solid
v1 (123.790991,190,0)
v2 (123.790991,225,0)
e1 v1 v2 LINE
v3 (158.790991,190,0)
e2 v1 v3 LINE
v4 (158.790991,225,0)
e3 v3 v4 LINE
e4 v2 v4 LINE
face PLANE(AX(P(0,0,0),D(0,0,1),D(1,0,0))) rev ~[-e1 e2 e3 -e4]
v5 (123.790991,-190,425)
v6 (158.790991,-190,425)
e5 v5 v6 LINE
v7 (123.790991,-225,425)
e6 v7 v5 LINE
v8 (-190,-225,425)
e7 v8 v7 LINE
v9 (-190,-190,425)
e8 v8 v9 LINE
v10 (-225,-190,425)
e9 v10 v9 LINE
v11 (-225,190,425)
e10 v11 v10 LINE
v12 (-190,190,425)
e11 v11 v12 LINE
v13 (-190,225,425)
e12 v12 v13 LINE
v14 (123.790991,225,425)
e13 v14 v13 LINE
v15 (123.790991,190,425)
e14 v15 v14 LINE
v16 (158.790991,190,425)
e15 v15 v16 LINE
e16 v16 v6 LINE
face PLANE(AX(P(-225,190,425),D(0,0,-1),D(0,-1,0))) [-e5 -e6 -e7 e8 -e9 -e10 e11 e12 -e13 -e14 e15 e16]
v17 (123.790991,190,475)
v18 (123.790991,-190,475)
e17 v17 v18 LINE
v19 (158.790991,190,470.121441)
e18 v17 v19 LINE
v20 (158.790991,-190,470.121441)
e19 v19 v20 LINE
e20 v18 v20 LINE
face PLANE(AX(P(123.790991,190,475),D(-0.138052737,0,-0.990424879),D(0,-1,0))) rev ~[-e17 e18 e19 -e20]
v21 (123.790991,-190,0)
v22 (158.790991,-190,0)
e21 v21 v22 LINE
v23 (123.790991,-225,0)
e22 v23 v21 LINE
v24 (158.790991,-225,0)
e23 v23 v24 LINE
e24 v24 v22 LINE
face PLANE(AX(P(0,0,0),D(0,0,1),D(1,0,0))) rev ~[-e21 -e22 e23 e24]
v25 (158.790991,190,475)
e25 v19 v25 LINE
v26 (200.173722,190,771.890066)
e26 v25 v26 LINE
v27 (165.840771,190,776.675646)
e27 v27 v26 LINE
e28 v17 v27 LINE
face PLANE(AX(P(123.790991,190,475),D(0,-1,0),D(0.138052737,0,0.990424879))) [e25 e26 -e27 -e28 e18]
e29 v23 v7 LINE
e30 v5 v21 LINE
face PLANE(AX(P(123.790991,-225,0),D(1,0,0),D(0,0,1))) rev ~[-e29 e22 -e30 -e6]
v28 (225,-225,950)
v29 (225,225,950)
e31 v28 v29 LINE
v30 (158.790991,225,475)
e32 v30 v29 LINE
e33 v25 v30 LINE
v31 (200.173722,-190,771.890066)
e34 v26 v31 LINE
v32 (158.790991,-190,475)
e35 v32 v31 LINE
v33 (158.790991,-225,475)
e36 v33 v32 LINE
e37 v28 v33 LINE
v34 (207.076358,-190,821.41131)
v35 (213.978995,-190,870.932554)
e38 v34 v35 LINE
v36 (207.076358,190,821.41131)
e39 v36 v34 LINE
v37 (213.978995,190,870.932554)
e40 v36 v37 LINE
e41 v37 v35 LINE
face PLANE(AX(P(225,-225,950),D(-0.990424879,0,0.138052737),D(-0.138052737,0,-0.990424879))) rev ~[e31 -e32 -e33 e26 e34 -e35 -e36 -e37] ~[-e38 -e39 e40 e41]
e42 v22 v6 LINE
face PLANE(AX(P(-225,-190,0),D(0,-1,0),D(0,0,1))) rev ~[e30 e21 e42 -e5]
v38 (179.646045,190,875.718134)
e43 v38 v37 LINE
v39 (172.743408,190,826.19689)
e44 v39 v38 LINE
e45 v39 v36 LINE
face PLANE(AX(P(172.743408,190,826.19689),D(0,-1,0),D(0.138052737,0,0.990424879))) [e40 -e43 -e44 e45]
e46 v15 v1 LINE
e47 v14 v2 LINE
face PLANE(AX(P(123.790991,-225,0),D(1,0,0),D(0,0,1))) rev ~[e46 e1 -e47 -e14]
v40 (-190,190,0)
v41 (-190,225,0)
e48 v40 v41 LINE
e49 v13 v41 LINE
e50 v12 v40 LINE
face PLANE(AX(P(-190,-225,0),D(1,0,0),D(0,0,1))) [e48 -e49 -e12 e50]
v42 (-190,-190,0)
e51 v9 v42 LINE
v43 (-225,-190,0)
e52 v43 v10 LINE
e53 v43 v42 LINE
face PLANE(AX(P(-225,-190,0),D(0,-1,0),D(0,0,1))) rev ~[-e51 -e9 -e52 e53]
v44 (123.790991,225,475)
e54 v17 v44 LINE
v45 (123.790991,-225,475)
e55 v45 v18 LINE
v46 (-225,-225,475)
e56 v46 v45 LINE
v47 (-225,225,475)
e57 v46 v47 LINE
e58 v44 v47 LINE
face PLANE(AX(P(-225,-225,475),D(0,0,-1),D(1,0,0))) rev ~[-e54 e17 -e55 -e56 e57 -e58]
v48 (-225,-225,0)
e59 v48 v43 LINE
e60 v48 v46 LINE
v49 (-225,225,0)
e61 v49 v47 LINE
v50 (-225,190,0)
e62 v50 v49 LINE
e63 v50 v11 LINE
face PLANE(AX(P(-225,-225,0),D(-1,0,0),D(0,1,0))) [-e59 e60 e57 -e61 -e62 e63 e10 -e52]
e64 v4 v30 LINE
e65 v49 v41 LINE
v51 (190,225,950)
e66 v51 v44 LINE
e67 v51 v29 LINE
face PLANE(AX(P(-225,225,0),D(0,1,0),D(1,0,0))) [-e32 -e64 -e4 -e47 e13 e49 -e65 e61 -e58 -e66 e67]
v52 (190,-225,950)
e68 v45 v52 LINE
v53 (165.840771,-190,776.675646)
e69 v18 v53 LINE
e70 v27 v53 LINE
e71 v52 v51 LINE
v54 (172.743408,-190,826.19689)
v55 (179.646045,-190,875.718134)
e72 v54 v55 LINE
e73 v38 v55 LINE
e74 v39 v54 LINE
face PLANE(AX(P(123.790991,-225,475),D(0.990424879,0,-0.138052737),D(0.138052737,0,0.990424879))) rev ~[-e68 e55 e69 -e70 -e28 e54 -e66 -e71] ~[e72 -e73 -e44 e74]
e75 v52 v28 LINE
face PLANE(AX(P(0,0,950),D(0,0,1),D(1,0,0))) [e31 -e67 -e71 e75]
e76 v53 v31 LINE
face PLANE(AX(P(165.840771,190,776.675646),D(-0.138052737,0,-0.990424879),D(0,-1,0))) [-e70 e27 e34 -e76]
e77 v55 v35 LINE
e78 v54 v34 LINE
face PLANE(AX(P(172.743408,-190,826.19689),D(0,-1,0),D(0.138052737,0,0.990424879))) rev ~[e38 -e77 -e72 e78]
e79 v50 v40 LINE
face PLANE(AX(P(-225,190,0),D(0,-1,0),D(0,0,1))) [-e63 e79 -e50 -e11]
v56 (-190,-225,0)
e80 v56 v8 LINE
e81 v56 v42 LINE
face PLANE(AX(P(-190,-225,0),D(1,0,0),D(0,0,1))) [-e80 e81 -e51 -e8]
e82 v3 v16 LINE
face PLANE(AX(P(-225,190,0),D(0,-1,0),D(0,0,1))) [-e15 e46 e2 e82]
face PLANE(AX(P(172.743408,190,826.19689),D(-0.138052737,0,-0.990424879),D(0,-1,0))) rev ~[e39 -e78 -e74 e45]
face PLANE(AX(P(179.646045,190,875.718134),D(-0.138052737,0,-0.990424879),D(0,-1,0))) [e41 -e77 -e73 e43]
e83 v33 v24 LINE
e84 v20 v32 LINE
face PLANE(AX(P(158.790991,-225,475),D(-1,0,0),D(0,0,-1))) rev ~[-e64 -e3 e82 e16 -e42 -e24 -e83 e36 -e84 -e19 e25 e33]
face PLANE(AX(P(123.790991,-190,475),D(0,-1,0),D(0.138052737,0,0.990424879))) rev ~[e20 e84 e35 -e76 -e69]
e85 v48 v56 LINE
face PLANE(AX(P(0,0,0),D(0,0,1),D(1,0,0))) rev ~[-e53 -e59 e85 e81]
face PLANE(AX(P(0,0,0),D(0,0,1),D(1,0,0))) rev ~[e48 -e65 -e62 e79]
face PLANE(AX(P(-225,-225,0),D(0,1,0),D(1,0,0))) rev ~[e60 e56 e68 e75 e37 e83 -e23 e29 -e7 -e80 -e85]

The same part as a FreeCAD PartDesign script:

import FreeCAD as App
import Part
import Sketcher

V = App.Vector

doc = App.newDocument("Part")
params = doc.addObject("Spreadsheet::Sheet", "Params")
for row, (alias, value) in enumerate([
    ("sketch1_width", "450 mm"),
    ("pad1_length", "950 mm"),
    ("sketch2_width", "415 mm"),
    ("sketch2_height", "475 mm"),
    ("sketch2_height2", "425 mm"),
    ("sketch3_width", "380 mm"),
    ("sketch3_height", "425 mm"),
    ("sketch4_width", "380 mm"),
    ("sketch4_height", "50 mm"),
], start=1):
    params.set(f"A{row}", alias)
    params.set(f"B{row}", "=" + value)
    params.setAlias(f"B{row}", alias)

body = doc.addObject("PartDesign::Body", "Body")

sketch1 = body.newObject("Sketcher::SketchObject", "Sketch")
sketch1.AttachmentSupport = (doc.getObject("XY_Plane"), [""])
sketch1.MapMode = "FlatFace"
sketch1.addGeometry([
    Part.LineSegment(V(-225, 225, 0), V(-225, -225, 0)),
    Part.LineSegment(V(-225, -225, 0), V(225, -225, 0)),
    Part.LineSegment(V(225, -225, 0), V(225, 225, 0)),
    Part.LineSegment(V(225, 225, 0), V(-225, 225, 0)),
], False)
sketch1.addConstraint([
    Sketcher.Constraint("Coincident", 0, 2, 1, 1),
    Sketcher.Constraint("Coincident", 1, 2, 2, 1),
    Sketcher.Constraint("Coincident", 2, 2, 3, 1),
    Sketcher.Constraint("Coincident", 3, 2, 0, 1),
    Sketcher.Constraint("Vertical", 0),
    Sketcher.Constraint("Horizontal", 1),
    Sketcher.Constraint("Vertical", 2),
    Sketcher.Constraint("Horizontal", 3),
    Sketcher.Constraint("Symmetric", 0, 2, 2, 2, -1, 1),
    Sketcher.Constraint("Equal", 3, 0),
    Sketcher.Constraint("DistanceX", 1, 1, 1, 2, 450.0),
])
sketch1.setExpression("Constraints[10]", "Params.sketch1_width")
pad1 = body.newObject("PartDesign::Pad", "Pad")
pad1.Profile = sketch1
pad1.setExpression("Length", "Params.pad1_length")

sketch2 = body.newObject("Sketcher::SketchObject", "Sketch001")
sketch2.AttachmentSupport = (doc.getObject("XZ_Plane"), [""])
sketch2.MapMode = "FlatFace"
sketch2.AttachmentOffset = App.Placement(V(0, 0, 225), App.Rotation())
sketch2.addGeometry([
    Part.LineSegment(V(-225, 475, 0), V(123.790991, 475, 0)),
    Part.LineSegment(V(123.790991, 475, 0), V(190, 950, 0)),
    Part.LineSegment(V(190, 950, 0), V(-225, 950, 0)),
    Part.LineSegment(V(-225, 950, 0), V(-225, 475, 0)),
    Part.LineSegment(V(225, 950, 0), V(158.790991, 475, 0)),
    Part.LineSegment(V(158.790991, 475, 0), V(158.790991, 0, 0)),
    Part.LineSegment(V(158.790991, 0, 0), V(225, 0, 0)),
    Part.LineSegment(V(225, 0, 0), V(225, 950, 0)),
    Part.LineSegment(V(-190, 425, 0), V(-190, 0, 0)),
    Part.LineSegment(V(-190, 0, 0), V(123.790991, 0, 0)),
    Part.LineSegment(V(123.790991, 0, 0), V(123.790991, 425, 0)),
    Part.LineSegment(V(123.790991, 425, 0), V(-190, 425, 0)),
], False)
sketch2.addConstraint([
    Sketcher.Constraint("Coincident", 0, 2, 1, 1),
    Sketcher.Constraint("Coincident", 1, 2, 2, 1),
    Sketcher.Constraint("Coincident", 2, 2, 3, 1),
    Sketcher.Constraint("Coincident", 3, 2, 0, 1),
    Sketcher.Constraint("Coincident", 4, 2, 5, 1),
    Sketcher.Constraint("Coincident", 5, 2, 6, 1),
    Sketcher.Constraint("Coincident", 6, 2, 7, 1),
    Sketcher.Constraint("Coincident", 7, 2, 4, 1),
    Sketcher.Constraint("Coincident", 8, 2, 9, 1),
    Sketcher.Constraint("Coincident", 9, 2, 10, 1),
    Sketcher.Constraint("Coincident", 10, 2, 11, 1),
    Sketcher.Constraint("Coincident", 11, 2, 8, 1),
    Sketcher.Constraint("Horizontal", 0),
    Sketcher.Constraint("Horizontal", 2),
    Sketcher.Constraint("Vertical", 3),
    Sketcher.Constraint("Vertical", 5),
    Sketcher.Constraint("Horizontal", 6),
    Sketcher.Constraint("Vertical", 7),
    Sketcher.Constraint("Vertical", 8),
    Sketcher.Constraint("Horizontal", 9),
    Sketcher.Constraint("Vertical", 10),
    Sketcher.Constraint("Horizontal", 11),
    Sketcher.Constraint("Symmetric", 2, 2, 7, 2, -2),
    Sketcher.Constraint("PointOnObject", 5, 2, -1),
    Sketcher.Constraint("PointOnObject", 8, 2, -1),
    Sketcher.Constraint("Parallel", 1, 4),
    Sketcher.Constraint("Horizontal", 3, 2, 4, 2),
    Sketcher.Constraint("Vertical", 0, 2, 9, 2),
    Sketcher.Constraint("Equal", 3, 5),
    Sketcher.Constraint("DistanceX", 2, 2, 2, 1, 415.0),
    Sketcher.Constraint("DistanceY", 3, 2, 3, 1, 475.0),
    Sketcher.Constraint("DistanceY", 8, 2, 8, 1, 425.0),
    Sketcher.Constraint("DistanceX", -1, 1, 1, 2, 190.0),
    Sketcher.Constraint("DistanceX", 8, 2, -1, 1, 190.0),
    Sketcher.Constraint("DistanceX", 0, 1, 0, 2, 348.790991),
])
sketch2.setExpression("Constraints[29]", "Params.sketch2_width")
sketch2.setExpression("Constraints[30]", "Params.sketch2_height")
sketch2.setExpression("Constraints[31]", "Params.sketch2_height2")
pocket1 = body.newObject("PartDesign::Pocket", "Pocket")
pocket1.Profile = sketch2
pocket1.Type = "ThroughAll"

sketch3 = body.newObject("Sketcher::SketchObject", "Sketch002")
sketch3.AttachmentSupport = (doc.getObject("YZ_Plane"), [""])
sketch3.MapMode = "FlatFace"
sketch3.AttachmentOffset = App.Placement(V(0, 0, -225), App.Rotation())
sketch3.addGeometry([
    Part.LineSegment(V(190, 425, 0), V(190, 0, 0)),
    Part.LineSegment(V(190, 0, 0), V(-190, 0, 0)),
    Part.LineSegment(V(-190, 0, 0), V(-190, 425, 0)),
    Part.LineSegment(V(-190, 425, 0), V(190, 425, 0)),
], False)
sketch3.addConstraint([
    Sketcher.Constraint("Coincident", 0, 2, 1, 1),
    Sketcher.Constraint("Coincident", 1, 2, 2, 1),
    Sketcher.Constraint("Coincident", 2, 2, 3, 1),
    Sketcher.Constraint("Coincident", 3, 2, 0, 1),
    Sketcher.Constraint("Vertical", 0),
    Sketcher.Constraint("Horizontal", 1),
    Sketcher.Constraint("Vertical", 2),
    Sketcher.Constraint("Horizontal", 3),
    Sketcher.Constraint("Symmetric", 0, 2, 1, 2, -1, 1),
    Sketcher.Constraint("DistanceX", 1, 2, 1, 1, 380.0),
    Sketcher.Constraint("DistanceY", 0, 2, 0, 1, 425.0),
])
sketch3.setExpression("Constraints[9]", "Params.sketch3_width")
sketch3.setExpression("Constraints[10]", "Params.sketch3_height")
pocket2 = body.newObject("PartDesign::Pocket", "Pocket001")
pocket2.Profile = sketch3
pocket2.Type = "ThroughAll"
pocket2.Reversed = True

sketch4 = body.newObject("Sketcher::SketchObject", "Sketch003")
sketch4.Placement = App.Placement(V(56.484552, 0, -7.873234), App.Rotation(V(0, -1, 0), V(0.138052737, 0, 0.990424879), V(-0.990424879, 0, 0.138052737), "ZXY"))
sketch4.addGeometry([
    Part.LineSegment(V(-190, 892.133655, 0), V(-190, 842.133655, 0)),
    Part.LineSegment(V(-190, 842.133655, 0), V(190, 842.133655, 0)),
    Part.LineSegment(V(190, 842.133655, 0), V(190, 892.133655, 0)),
    Part.LineSegment(V(190, 892.133655, 0), V(-190, 892.133655, 0)),
    Part.LineSegment(V(-190, 792.133655, 0), V(-190, 487.541502, 0)),
    Part.LineSegment(V(-190, 487.541502, 0), V(190, 487.541502, 0)),
    Part.LineSegment(V(190, 487.541502, 0), V(190, 792.133655, 0)),
    Part.LineSegment(V(190, 792.133655, 0), V(-190, 792.133655, 0)),
], False)
sketch4.addConstraint([
    Sketcher.Constraint("Coincident", 0, 2, 1, 1),
    Sketcher.Constraint("Coincident", 1, 2, 2, 1),
    Sketcher.Constraint("Coincident", 2, 2, 3, 1),
    Sketcher.Constraint("Coincident", 3, 2, 0, 1),
    Sketcher.Constraint("Coincident", 4, 2, 5, 1),
    Sketcher.Constraint("Coincident", 5, 2, 6, 1),
    Sketcher.Constraint("Coincident", 6, 2, 7, 1),
    Sketcher.Constraint("Coincident", 7, 2, 4, 1),
    Sketcher.Constraint("Vertical", 0),
    Sketcher.Constraint("Horizontal", 1),
    Sketcher.Constraint("Vertical", 2),
    Sketcher.Constraint("Horizontal", 3),
    Sketcher.Constraint("Vertical", 4),
    Sketcher.Constraint("Horizontal", 5),
    Sketcher.Constraint("Vertical", 6),
    Sketcher.Constraint("Horizontal", 7),
    Sketcher.Constraint("Vertical", 3, 2, 4, 2),
    Sketcher.Constraint("Vertical", 2, 2, 5, 2),
    Sketcher.Constraint("DistanceX", 1, 1, 1, 2, 380.0),
    Sketcher.Constraint("DistanceY", 0, 2, 0, 1, 50.0),
    Sketcher.Constraint("DistanceX", 0, 2, -1, 1, 190.0),
    Sketcher.Constraint("DistanceY", 6, 2, 1, 2, 50.0),
    Sketcher.Constraint("DistanceY", 4, 2, 4, 1, 304.592152),
    Sketcher.Constraint("DistanceY", -1, 1, 0, 2, 842.133655),
])
sketch4.setExpression("Constraints[18]", "Params.sketch4_width")
sketch4.setExpression("Constraints[19]", "Params.sketch4_height")
pocket3 = body.newObject("PartDesign::Pocket", "Pocket002")
pocket3.Profile = sketch4
pocket3.Type = "ThroughAll"

doc.recompute()
